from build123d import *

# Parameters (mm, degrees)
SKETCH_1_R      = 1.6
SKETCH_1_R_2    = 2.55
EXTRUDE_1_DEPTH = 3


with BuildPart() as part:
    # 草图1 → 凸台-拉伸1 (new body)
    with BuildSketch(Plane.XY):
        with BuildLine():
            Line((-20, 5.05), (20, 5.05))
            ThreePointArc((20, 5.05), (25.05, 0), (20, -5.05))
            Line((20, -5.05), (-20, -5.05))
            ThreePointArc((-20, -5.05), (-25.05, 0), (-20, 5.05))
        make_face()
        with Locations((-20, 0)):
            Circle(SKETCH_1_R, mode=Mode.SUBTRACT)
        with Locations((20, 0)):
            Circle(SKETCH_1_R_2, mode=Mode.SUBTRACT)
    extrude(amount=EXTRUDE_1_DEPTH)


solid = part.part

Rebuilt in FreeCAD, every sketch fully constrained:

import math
import FreeCAD as App
import Part
import Sketcher
from FreeCAD import Vector

doc = App.newDocument("Part")
body = doc.addObject("PartDesign::Body", "Body")

sketch1 = doc.addObject("Sketcher::SketchObject", "Sketch")
body.addObject(sketch1)
sketch1.AttachmentSupport = (doc.XY_Plane, [""])
sketch1.MapMode = "FlatFace"
sketch1.addGeometry(Part.LineSegment(Vector(20, 5, 0), Vector(-20, 5, 0)), False)
sketch1.addGeometry(Part.ArcOfCircle(Part.Circle(Vector(-20, 0, 0), Vector(0, 0, 1), 5), math.radians(90), math.radians(270)), False)
sketch1.addGeometry(Part.LineSegment(Vector(-20, -5, 0), Vector(20, -5, 0)), False)
sketch1.addGeometry(Part.ArcOfCircle(Part.Circle(Vector(20, 0, 0), Vector(0, 0, 1), 5), math.radians(-90), math.radians(90)), False)
sketch1.addGeometry(Part.Circle(Vector(20, 0, 0), Vector(0, 0, 1), 2.5), False)
sketch1.addGeometry(Part.Circle(Vector(-20, 0, 0), Vector(0, 0, 1), 1.6), False)
sketch1.addConstraint(Sketcher.Constraint("Tangent", 0, 2, 1, 1))
sketch1.addConstraint(Sketcher.Constraint("Tangent", 1, 2, 2, 1))
sketch1.addConstraint(Sketcher.Constraint("Tangent", 2, 2, 3, 1))
sketch1.addConstraint(Sketcher.Constraint("Tangent", 3, 2, 0, 1))
sketch1.addConstraint(Sketcher.Constraint("Horizontal", 0))
sketch1.addConstraint(Sketcher.Constraint("Horizontal", 2))
sketch1.addConstraint(Sketcher.Constraint("Coincident", 4, 3, 3, 3))
sketch1.addConstraint(Sketcher.Constraint("Coincident", 5, 3, 1, 3))
sketch1.addConstraint(Sketcher.Constraint("Symmetric", 1, 3, 3, 3, -1, 1))
sketch1.addConstraint(Sketcher.Constraint("Diameter", 4, 5.1))
sketch1.addConstraint(Sketcher.Constraint("Diameter", 5, 3.2))
sketch1.addConstraint(Sketcher.Constraint("DistanceX", 0, 2, 0, 1, 40.0))
sketch1.addConstraint(Sketcher.Constraint("Radius", 1, 5.05))
pad1 = doc.addObject("PartDesign::Pad", "Pad")
body.addObject(pad1)
pad1.Profile = sketch1
pad1.Length = 3

doc.recompute()
